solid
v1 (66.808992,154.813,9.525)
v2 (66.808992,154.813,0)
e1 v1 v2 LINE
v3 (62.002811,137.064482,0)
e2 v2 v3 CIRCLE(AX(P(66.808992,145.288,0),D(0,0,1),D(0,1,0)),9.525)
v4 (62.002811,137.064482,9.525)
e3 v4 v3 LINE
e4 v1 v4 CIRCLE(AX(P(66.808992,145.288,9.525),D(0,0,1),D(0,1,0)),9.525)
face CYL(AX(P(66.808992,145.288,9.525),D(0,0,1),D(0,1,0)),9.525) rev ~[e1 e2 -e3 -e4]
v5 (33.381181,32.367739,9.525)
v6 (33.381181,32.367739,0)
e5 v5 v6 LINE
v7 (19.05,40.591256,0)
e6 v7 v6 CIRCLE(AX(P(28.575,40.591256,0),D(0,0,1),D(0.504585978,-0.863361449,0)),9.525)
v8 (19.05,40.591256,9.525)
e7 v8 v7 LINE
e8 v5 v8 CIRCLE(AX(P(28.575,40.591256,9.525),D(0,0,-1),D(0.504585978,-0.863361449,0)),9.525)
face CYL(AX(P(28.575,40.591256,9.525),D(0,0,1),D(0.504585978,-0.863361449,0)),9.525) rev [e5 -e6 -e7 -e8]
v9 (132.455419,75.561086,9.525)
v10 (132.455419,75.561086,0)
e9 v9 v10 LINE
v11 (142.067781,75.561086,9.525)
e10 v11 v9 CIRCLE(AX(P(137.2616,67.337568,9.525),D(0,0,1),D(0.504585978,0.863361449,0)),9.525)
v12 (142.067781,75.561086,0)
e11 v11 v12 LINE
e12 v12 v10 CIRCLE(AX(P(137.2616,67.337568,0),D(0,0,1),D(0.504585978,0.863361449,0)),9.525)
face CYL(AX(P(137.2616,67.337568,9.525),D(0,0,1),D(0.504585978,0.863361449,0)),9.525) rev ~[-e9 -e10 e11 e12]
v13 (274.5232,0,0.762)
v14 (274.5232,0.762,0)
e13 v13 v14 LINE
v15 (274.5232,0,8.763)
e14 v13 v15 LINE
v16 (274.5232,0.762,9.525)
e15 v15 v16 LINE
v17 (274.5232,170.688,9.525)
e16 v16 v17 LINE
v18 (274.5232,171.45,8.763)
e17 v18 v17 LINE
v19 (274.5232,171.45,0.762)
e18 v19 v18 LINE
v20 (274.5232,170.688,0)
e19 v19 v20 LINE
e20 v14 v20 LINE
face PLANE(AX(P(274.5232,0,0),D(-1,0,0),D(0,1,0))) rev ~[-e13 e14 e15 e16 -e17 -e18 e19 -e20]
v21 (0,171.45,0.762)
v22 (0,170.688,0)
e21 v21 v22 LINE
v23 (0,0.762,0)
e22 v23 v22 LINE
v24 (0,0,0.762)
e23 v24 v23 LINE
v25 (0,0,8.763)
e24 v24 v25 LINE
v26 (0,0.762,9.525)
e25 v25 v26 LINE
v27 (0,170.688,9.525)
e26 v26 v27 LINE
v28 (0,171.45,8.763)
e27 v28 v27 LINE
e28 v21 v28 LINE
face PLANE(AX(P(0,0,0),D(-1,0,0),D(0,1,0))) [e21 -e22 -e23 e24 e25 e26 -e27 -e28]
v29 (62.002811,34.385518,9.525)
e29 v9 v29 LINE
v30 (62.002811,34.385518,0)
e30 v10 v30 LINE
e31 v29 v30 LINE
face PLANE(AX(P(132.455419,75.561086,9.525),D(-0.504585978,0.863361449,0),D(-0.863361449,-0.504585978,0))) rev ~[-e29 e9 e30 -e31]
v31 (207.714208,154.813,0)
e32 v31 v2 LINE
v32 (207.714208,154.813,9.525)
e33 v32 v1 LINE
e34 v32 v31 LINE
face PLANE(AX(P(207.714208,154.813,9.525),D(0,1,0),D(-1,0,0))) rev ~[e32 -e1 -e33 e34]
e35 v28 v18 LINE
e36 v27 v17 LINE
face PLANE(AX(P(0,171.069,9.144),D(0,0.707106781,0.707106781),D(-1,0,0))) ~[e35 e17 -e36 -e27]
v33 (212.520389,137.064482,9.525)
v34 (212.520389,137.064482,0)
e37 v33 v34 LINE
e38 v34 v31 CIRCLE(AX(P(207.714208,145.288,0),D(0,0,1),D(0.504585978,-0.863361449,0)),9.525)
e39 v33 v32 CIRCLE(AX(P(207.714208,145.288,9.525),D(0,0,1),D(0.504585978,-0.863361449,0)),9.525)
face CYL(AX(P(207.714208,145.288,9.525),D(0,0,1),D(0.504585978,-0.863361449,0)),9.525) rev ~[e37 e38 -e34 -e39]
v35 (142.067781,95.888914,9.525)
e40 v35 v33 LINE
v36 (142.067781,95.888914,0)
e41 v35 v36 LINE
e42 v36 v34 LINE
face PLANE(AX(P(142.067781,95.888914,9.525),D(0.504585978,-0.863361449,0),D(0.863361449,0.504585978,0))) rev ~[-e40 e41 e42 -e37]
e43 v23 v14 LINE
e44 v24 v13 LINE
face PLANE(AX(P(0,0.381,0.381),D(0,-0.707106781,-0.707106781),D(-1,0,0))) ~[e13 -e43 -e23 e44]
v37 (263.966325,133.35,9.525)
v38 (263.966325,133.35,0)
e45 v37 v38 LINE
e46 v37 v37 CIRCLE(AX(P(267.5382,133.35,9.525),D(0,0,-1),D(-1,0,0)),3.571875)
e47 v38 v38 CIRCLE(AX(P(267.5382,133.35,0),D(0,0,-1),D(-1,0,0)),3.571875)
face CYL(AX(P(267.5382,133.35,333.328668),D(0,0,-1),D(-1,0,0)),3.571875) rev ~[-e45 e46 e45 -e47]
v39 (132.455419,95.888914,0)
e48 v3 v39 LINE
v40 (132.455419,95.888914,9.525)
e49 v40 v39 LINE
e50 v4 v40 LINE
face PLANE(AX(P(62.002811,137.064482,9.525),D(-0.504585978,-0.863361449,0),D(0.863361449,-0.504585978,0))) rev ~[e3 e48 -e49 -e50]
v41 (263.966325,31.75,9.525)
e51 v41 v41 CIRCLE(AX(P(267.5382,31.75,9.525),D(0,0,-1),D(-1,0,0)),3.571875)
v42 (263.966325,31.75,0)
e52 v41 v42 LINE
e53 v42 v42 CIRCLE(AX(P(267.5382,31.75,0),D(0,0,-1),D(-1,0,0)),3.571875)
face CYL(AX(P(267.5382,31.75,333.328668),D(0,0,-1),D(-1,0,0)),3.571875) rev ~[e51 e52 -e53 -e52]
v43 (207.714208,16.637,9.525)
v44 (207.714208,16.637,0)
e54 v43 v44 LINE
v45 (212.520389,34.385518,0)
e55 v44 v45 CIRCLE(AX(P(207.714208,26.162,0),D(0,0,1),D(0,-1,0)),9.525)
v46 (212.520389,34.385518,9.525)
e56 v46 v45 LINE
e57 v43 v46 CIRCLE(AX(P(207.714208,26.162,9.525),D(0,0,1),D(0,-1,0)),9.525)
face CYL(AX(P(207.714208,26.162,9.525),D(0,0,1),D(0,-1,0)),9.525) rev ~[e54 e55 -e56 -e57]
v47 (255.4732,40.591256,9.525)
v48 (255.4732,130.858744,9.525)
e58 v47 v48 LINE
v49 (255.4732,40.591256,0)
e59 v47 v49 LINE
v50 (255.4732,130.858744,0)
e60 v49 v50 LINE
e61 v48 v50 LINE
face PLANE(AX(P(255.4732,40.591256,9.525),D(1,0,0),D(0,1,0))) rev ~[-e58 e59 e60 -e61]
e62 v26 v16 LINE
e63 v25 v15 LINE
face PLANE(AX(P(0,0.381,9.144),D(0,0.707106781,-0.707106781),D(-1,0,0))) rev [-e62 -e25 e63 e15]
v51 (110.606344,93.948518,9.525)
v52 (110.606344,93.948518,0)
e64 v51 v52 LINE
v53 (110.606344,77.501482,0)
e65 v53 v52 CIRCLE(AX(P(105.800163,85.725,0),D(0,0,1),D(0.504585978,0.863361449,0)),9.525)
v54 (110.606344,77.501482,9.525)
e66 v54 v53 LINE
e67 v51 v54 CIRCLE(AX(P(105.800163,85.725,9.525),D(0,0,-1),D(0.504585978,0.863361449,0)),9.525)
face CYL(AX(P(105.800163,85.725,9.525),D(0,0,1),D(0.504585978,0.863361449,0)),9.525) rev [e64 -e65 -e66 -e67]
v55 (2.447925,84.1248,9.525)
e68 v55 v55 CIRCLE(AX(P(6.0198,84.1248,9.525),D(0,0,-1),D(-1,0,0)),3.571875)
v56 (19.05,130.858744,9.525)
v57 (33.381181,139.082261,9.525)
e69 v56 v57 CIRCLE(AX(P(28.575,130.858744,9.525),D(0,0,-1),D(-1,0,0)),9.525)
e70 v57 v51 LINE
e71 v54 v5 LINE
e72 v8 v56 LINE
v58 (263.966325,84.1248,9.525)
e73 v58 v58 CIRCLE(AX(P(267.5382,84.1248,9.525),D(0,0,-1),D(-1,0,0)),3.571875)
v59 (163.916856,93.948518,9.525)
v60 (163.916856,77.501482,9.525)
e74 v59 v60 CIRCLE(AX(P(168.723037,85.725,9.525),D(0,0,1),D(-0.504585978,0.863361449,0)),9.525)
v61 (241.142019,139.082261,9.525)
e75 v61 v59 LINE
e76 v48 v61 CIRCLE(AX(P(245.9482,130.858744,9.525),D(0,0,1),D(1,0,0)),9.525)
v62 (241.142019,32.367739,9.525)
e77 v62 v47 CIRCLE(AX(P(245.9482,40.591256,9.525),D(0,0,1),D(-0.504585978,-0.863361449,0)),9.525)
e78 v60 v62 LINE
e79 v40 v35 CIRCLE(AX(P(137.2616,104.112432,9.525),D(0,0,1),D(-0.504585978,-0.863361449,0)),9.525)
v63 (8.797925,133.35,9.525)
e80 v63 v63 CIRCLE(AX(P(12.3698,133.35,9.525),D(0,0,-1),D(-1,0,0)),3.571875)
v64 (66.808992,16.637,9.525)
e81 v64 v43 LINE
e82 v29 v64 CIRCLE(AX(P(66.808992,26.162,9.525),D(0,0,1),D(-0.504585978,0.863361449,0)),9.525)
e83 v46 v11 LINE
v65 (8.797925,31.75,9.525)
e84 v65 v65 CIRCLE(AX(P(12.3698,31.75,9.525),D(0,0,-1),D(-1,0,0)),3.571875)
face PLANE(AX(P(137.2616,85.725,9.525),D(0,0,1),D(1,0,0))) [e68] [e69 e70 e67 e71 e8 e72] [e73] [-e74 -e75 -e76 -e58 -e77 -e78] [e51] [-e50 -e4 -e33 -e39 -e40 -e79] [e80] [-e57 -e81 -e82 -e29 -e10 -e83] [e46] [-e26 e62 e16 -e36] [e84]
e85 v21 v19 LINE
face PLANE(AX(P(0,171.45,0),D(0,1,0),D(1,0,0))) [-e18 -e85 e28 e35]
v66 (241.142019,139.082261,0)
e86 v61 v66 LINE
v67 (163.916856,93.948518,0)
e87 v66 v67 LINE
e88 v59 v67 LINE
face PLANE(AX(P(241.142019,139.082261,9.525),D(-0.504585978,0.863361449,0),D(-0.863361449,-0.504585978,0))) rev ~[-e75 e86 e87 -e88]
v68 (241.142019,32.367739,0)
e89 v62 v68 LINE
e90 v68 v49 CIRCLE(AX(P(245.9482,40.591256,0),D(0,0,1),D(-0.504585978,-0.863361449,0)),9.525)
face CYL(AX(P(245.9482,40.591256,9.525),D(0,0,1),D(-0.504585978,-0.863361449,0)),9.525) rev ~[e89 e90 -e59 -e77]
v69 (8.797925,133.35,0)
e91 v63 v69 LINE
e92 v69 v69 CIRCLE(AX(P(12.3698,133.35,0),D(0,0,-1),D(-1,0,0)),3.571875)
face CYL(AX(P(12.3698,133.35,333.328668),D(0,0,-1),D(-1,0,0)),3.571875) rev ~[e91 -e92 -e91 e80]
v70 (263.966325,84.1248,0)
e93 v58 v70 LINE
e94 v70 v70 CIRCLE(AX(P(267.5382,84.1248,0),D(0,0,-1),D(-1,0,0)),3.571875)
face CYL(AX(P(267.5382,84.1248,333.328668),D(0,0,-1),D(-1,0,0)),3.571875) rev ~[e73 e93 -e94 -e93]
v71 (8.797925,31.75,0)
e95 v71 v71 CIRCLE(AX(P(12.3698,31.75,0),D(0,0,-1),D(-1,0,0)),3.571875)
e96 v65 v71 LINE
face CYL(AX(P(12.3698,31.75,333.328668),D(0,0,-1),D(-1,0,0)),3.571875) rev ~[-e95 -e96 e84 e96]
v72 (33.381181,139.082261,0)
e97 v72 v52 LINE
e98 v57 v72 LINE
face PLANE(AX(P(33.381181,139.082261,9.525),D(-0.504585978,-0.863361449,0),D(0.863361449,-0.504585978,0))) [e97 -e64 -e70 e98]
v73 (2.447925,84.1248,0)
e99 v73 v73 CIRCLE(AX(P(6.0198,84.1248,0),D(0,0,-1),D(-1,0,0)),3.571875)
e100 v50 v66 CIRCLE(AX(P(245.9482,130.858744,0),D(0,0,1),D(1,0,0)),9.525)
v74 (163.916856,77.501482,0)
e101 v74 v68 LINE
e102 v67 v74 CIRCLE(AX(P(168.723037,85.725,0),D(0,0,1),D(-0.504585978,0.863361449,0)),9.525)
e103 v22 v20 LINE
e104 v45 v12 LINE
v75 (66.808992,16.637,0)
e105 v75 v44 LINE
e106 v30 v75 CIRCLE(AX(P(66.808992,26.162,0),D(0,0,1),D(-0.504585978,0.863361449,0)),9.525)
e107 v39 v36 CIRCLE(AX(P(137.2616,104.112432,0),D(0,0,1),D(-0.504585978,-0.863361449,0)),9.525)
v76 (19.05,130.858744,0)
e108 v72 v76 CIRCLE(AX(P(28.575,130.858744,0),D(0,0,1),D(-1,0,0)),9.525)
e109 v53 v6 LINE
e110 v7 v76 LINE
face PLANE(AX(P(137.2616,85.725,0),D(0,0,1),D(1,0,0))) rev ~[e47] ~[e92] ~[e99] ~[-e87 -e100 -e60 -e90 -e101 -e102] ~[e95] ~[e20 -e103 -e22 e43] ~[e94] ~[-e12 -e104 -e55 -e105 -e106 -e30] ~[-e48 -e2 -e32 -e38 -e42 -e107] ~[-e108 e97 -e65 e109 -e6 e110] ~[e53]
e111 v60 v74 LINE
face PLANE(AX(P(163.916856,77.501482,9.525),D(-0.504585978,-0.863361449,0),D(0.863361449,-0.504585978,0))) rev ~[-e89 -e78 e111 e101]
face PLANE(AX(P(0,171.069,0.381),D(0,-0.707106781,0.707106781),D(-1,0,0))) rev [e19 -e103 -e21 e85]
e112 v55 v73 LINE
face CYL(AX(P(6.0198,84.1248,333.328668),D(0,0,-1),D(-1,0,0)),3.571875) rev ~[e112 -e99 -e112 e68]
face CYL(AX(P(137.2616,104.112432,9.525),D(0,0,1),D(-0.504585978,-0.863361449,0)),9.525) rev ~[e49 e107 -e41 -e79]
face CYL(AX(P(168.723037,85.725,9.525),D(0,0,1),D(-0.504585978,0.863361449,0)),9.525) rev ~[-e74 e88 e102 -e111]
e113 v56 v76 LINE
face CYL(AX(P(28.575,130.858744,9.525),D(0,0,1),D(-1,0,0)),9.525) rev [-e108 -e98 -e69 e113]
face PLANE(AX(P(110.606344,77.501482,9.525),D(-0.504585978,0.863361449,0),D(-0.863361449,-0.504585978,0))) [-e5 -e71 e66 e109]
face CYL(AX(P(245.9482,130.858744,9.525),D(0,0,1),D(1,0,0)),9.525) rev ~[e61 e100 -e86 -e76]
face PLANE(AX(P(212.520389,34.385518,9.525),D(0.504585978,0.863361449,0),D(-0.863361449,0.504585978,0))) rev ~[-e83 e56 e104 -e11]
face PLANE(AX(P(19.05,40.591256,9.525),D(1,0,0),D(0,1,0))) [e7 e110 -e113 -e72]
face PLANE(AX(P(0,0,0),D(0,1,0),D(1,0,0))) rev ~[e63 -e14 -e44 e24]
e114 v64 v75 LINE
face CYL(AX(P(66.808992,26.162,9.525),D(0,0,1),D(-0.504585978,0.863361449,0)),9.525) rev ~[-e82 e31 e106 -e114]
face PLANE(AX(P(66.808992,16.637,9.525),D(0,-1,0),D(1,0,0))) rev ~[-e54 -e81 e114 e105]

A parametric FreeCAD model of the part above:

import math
import FreeCAD as App
import Part
import Sketcher
Q = App.Units.Quantity


def edges_at(feature, points):
    """Names of the edges that pass closest to the given points."""
    edges = feature.Shape.Edges
    near = lambda p: min(range(len(edges)), key=lambda i: edges[i].distToShape(Part.Vertex(*p))[0])
    return sorted({f"Edge{near(p) + 1}" for p in points})


def add_polygon(sketch, points):
    """Adds a closed chain of lines whose ends are joined by coincident constraints."""
    first, n = sketch.GeometryCount, len(points)
    for a, b in zip(points, points[1:] + points[:1]):
        sketch.addGeometry(Part.LineSegment(App.Vector(*a, 0), App.Vector(*b, 0)), False)
    for i in range(n):
        sketch.addConstraint(Sketcher.Constraint("Coincident", first + i, 2, first + (i + 1) % n, 1))

doc = App.newDocument("Part")
body = doc.addObject("PartDesign::Body", "Body")

sketch1 = body.newObject("Sketcher::SketchObject", "Sketch")
sketch1.AttachmentSupport = (doc.getObject("XY_Plane"), [""])
sketch1.MapMode = "FlatFace"
add_polygon(sketch1, [(0, 171), (0, 0), (275, 0), (275, 171)])
sketch1.addConstraint([
    Sketcher.Constraint("Vertical", 0),
    Sketcher.Constraint("Horizontal", 1),
    Sketcher.Constraint("Vertical", 2),
    Sketcher.Constraint("Horizontal", 3),
    Sketcher.Constraint("Coincident", 0, 2, -1, 1),
    Sketcher.Constraint("DistanceY", 0, 2, 0, 1, Q("6.75 in")),
    Sketcher.Constraint("DistanceX", 1, 1, 1, 2, Q("10.808 in")),
])
pad1 = body.newObject("PartDesign::Pad", "Pad")
pad1.Profile = sketch1
pad1.Length = Q("0.375 in")

sketch2 = body.newObject("Sketcher::SketchObject", "Sketch001")
sketch2.AttachmentSupport = (doc.getObject("XY_Plane"), [""])
sketch2.MapMode = "FlatFace"
sketch2.AttachmentOffset = App.Placement(App.Vector(0, 0, 0.375 * 25.4), App.Rotation())
sketch2.addGeometry([
    Part.Circle(App.Vector(6, 84.1, 0), App.Vector(0, 0, 1), 3.6),
    Part.Circle(App.Vector(12.4, 133.3, 0), App.Vector(0, 0, 1), 3.6),
    Part.Circle(App.Vector(12.4, 31.8, 0), App.Vector(0, 0, 1), 3.6),
    Part.Circle(App.Vector(267.5, 133.3, 0), App.Vector(0, 0, 1), 3.6),
    Part.Circle(App.Vector(267.5, 84.1, 0), App.Vector(0, 0, 1), 3.6),
    Part.Circle(App.Vector(267.5, 31.8, 0), App.Vector(0, 0, 1), 3.6),
], False)
sketch2.addConstraint([
    Sketcher.Constraint("Equal", 0, 1),
    Sketcher.Constraint("Equal", 1, 2),
    Sketcher.Constraint("Equal", 2, 3),
    Sketcher.Constraint("Equal", 3, 4),
    Sketcher.Constraint("Equal", 4, 5),
    Sketcher.Constraint("Horizontal", 1, 3, 3, 3),
    Sketcher.Constraint("Horizontal", 0, 3, 4, 3),
    Sketcher.Constraint("Horizontal", 2, 3, 5, 3),
    Sketcher.Constraint("Vertical", 1, 3, 2, 3),
    Sketcher.Constraint("Vertical", 3, 3, 4, 3),
    Sketcher.Constraint("Vertical", 4, 3, 5, 3),
    Sketcher.Constraint("Diameter", 0, Q("0.28125 in")),
    Sketcher.Constraint("DistanceY", 2, 3, 1, 3, Q("4 in")),
    Sketcher.Constraint("DistanceY", -1, 1, 1, 3, Q("5.25 in")),
    Sketcher.Constraint("DistanceX", 0, 3, 1, 3, Q("0.25 in")),
    Sketcher.Constraint("DistanceX", -1, 1, 0, 3, Q("0.237 in")),
    Sketcher.Constraint("DistanceY", -1, 1, 0, 3, Q("3.312 in")),
    Sketcher.Constraint("DistanceX", -1, 1, 3, 3, Q("10.533 in")),
])
doc.recompute()
hole = body.newObject("PartDesign::Hole", "Hole")
hole.Profile = sketch2
hole.ThreadType = "None"
hole.Diameter = Q("0.28125 in")
hole.DepthType = "ThroughAll"
doc.recompute()

chamfer = body.newObject("PartDesign::Chamfer", "Chamfer")
chamfer.Base = (hole, edges_at(hole, [
    (137.262, 171.45, 9.525),
    (137.262, 171.45, 0),
    (137.262, 0, 0),
    (137.262, 0, 9.525),
]))
chamfer.Size = Q("0.03 in")

sketch3 = body.newObject("Sketcher::SketchObject", "Sketch002")
sketch3.AttachmentSupport = (doc.getObject("XY_Plane"), [""])
sketch3.MapMode = "FlatFace"
sketch3.AttachmentOffset = App.Placement(App.Vector(0, 0, 0.375 * 25.4), App.Rotation())
sketch3.addGeometry([
    Part.LineSegment(App.Vector(111, 94, 0), App.Vector(33, 139, 0)),
    Part.ArcOfCircle(Part.Circle(App.Vector(29, 131, 0), App.Vector(0, 0, 1), 10), math.radians(60), math.radians(180)),
    Part.LineSegment(App.Vector(19, 131, 0), App.Vector(19, 41, 0)),
    Part.ArcOfCircle(Part.Circle(App.Vector(29, 41, 0), App.Vector(0, 0, 1), 10), math.radians(-180), math.radians(-60)),
    Part.LineSegment(App.Vector(33, 32, 0), App.Vector(111, 78, 0)),
    Part.ArcOfCircle(Part.Circle(App.Vector(106, 86, 0), App.Vector(0, 0, 1), 10), math.radians(-60), math.radians(60)),
    Part.LineSegment(App.Vector(62, 137, 0), App.Vector(132, 96, 0)),
    Part.ArcOfCircle(Part.Circle(App.Vector(137, 104, 0), App.Vector(0, 0, 1), 10), math.radians(-120), math.radians(-60)),
    Part.LineSegment(App.Vector(142, 96, 0), App.Vector(213, 137, 0)),
    Part.ArcOfCircle(Part.Circle(App.Vector(208, 145, 0), App.Vector(0, 0, 1), 10), math.radians(-60), math.radians(90)),
    Part.LineSegment(App.Vector(208, 155, 0), App.Vector(67, 155, 0)),
    Part.ArcOfCircle(Part.Circle(App.Vector(67, 145, 0), App.Vector(0, 0, 1), 10), math.radians(90), math.radians(240)),
    Part.LineSegment(App.Vector(241, 139, 0), App.Vector(164, 94, 0)),
    Part.ArcOfCircle(Part.Circle(App.Vector(169, 86, 0), App.Vector(0, 0, 1), 10), math.radians(120), math.radians(240)),
    Part.LineSegment(App.Vector(164, 78, 0), App.Vector(241, 32, 0)),
    Part.ArcOfCircle(Part.Circle(App.Vector(246, 41, 0), App.Vector(0, 0, 1), 10), math.radians(-120), math.radians(0)),
    Part.LineSegment(App.Vector(255, 41, 0), App.Vector(255, 131, 0)),
    Part.ArcOfCircle(Part.Circle(App.Vector(246, 131, 0), App.Vector(0, 0, 1), 10), math.radians(0), math.radians(120)),
    Part.LineSegment(App.Vector(67, 17, 0), App.Vector(208, 17, 0)),
    Part.ArcOfCircle(Part.Circle(App.Vector(208, 26, 0), App.Vector(0, 0, 1), 10), math.radians(-90), math.radians(60)),
    Part.LineSegment(App.Vector(213, 34, 0), App.Vector(142, 76, 0)),
    Part.ArcOfCircle(Part.Circle(App.Vector(137, 67, 0), App.Vector(0, 0, 1), 10), math.radians(60), math.radians(120)),
    Part.LineSegment(App.Vector(132, 76, 0), App.Vector(62, 34, 0)),
    Part.ArcOfCircle(Part.Circle(App.Vector(67, 26, 0), App.Vector(0, 0, 1), 10), math.radians(120), math.radians(270)),
], False)
sketch3.addConstraint([
    Sketcher.Constraint("Tangent", 0, 2, 1, 1),
    Sketcher.Constraint("Tangent", 1, 2, 2, 1),
    Sketcher.Constraint("Tangent", 2, 2, 3, 1),
    Sketcher.Constraint("Tangent", 3, 2, 4, 1),
    Sketcher.Constraint("Tangent", 4, 2, 5, 1),
    Sketcher.Constraint("Tangent", 5, 2, 0, 1),
    Sketcher.Constraint("Tangent", 6, 2, 7, 1),
    Sketcher.Constraint("Tangent", 7, 2, 8, 1),
    Sketcher.Constraint("Tangent", 8, 2, 9, 1),
    Sketcher.Constraint("Tangent", 9, 2, 10, 1),
    Sketcher.Constraint("Tangent", 10, 2, 11, 1),
    Sketcher.Constraint("Tangent", 11, 2, 6, 1),
    Sketcher.Constraint("Tangent", 12, 2, 13, 1),
    Sketcher.Constraint("Tangent", 13, 2, 14, 1),
    Sketcher.Constraint("Tangent", 14, 2, 15, 1),
    Sketcher.Constraint("Tangent", 15, 2, 16, 1),
    Sketcher.Constraint("Tangent", 16, 2, 17, 1),
    Sketcher.Constraint("Tangent", 17, 2, 12, 1),
    Sketcher.Constraint("Tangent", 18, 2, 19, 1),
    Sketcher.Constraint("Tangent", 19, 2, 20, 1),
    Sketcher.Constraint("Tangent", 20, 2, 21, 1),
    Sketcher.Constraint("Tangent", 21, 2, 22, 1),
    Sketcher.Constraint("Tangent", 22, 2, 23, 1),
    Sketcher.Constraint("Tangent", 23, 2, 18, 1),
    Sketcher.Constraint("Vertical", 2),
    Sketcher.Constraint("Horizontal", 10),
    Sketcher.Constraint("Vertical", 16),
    Sketcher.Constraint("Horizontal", 18),
    Sketcher.Constraint("Equal", 1, 3),
    Sketcher.Constraint("Equal", 3, 5),
    Sketcher.Constraint("Equal", 5, 7),
    Sketcher.Constraint("Equal", 7, 9),
    Sketcher.Constraint("Equal", 9, 11),
    Sketcher.Constraint("Equal", 11, 13),
    Sketcher.Constraint("Equal", 13, 15),
    Sketcher.Constraint("Equal", 15, 17),
    Sketcher.Constraint("Equal", 17, 19),
    Sketcher.Constraint("Equal", 19, 21),
    Sketcher.Constraint("Equal", 21, 23),
    Sketcher.Constraint("Parallel", 0, 6),
    Sketcher.Constraint("Parallel", 4, 8),
    Sketcher.Constraint("Parallel", 8, 12),
    Sketcher.Constraint("Parallel", 6, 14),
    Sketcher.Constraint("Parallel", 14, 20),
    Sketcher.Constraint("Parallel", 12, 22),
    Sketcher.Constraint("Horizontal", 5, 3, 13, 3),
    Sketcher.Constraint("Horizontal", 3, 3, 15, 3),
    Sketcher.Constraint("Horizontal", 1, 3, 17, 3),
    Sketcher.Constraint("Vertical", 9, 3, 19, 3),
    Sketcher.Constraint("Vertical", 7, 3, 21, 3),
    Sketcher.Constraint("Radius", 1, Q("0.375 in")),
    Sketcher.Constraint("DistanceY", -1, 1, 9, 3, Q("5.72 in")),
    Sketcher.Constraint("DistanceY", -1, 1, 19, 3, Q("1.03 in")),
    Sketcher.Constraint("DistanceX", -1, 1, 1, 2, Q("0.75 in")),
    Sketcher.Constraint("DistanceY", 13, 3, 9, 2, Q("2.72 in")),
    Sketcher.Constraint("DistanceX", -1, 1, 7, 3, Q("5.404 in")),
    Sketcher.Constraint("DistanceX", -1, 1, 15, 3, Q("9.683 in")),
    Sketcher.Constraint("Distance", 6, 81.60268),
    Sketcher.Constraint("DistanceX", 10, 2, 10, 1, 140.905216),
    Sketcher.Constraint("DistanceY", 2, 2, 2, 1, 90.267487),
])
pocket1 = body.newObject("PartDesign::Pocket", "Pocket")
pocket1.Profile = sketch3
pocket1.Type = "ThroughAll"

doc.recompute()
